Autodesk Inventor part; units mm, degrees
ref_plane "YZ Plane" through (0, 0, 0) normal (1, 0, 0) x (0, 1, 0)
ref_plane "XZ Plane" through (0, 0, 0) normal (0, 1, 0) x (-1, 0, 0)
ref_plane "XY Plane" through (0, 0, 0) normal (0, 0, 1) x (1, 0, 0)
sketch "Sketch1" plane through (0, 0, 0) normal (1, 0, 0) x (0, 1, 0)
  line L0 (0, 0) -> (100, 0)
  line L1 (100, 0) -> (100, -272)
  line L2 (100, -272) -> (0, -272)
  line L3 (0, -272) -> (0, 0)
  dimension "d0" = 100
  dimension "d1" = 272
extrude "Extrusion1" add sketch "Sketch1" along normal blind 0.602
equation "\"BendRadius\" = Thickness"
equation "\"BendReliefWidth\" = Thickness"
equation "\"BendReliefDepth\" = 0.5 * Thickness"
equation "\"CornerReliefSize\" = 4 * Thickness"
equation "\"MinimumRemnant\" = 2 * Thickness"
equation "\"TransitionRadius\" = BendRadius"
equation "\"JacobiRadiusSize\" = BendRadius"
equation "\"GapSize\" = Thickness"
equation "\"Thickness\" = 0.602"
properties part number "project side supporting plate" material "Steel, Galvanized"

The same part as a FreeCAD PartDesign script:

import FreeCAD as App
import Part
import Sketcher
from FreeCAD import Vector

doc = App.newDocument("Part")
body = doc.addObject("PartDesign::Body", "Body")

# Sketch on YZ plane
sketch1 = doc.addObject("Sketcher::SketchObject", "Sketch")
body.addObject(sketch1)
sketch1.AttachmentSupport = (doc.YZ_Plane, [""])
sketch1.MapMode = "FlatFace"
sketch1.addGeometry(Part.LineSegment(Vector(100, 0, 0), Vector(0, 0, 0)), False)
sketch1.addGeometry(Part.LineSegment(Vector(0, 0, 0), Vector(0, -272, 0)), False)
sketch1.addGeometry(Part.LineSegment(Vector(0, -272, 0), Vector(100, -272, 0)), False)
sketch1.addGeometry(Part.LineSegment(Vector(100, -272, 0), Vector(100, 0, 0)), False)
sketch1.addConstraint(Sketcher.Constraint("Coincident", 0, 2, 1, 1))
sketch1.addConstraint(Sketcher.Constraint("Coincident", 1, 2, 2, 1))
sketch1.addConstraint(Sketcher.Constraint("Coincident", 2, 2, 3, 1))
sketch1.addConstraint(Sketcher.Constraint("Coincident", 3, 2, 0, 1))
sketch1.addConstraint(Sketcher.Constraint("Horizontal", 0))
sketch1.addConstraint(Sketcher.Constraint("Vertical", 1))
sketch1.addConstraint(Sketcher.Constraint("Horizontal", 2))
sketch1.addConstraint(Sketcher.Constraint("Vertical", 3))
sketch1.addConstraint(Sketcher.Constraint("Coincident", 0, 2, -1, 1))
sketch1.addConstraint(Sketcher.Constraint("DistanceX", 0, 2, 0, 1, 100.0))
sketch1.addConstraint(Sketcher.Constraint("DistanceY", 1, 2, 1, 1, 272.0))
pad1 = doc.addObject("PartDesign::Pad", "Pad")
body.addObject(pad1)
pad1.Profile = sketch1
pad1.Length = 0.602

doc.recompute()
